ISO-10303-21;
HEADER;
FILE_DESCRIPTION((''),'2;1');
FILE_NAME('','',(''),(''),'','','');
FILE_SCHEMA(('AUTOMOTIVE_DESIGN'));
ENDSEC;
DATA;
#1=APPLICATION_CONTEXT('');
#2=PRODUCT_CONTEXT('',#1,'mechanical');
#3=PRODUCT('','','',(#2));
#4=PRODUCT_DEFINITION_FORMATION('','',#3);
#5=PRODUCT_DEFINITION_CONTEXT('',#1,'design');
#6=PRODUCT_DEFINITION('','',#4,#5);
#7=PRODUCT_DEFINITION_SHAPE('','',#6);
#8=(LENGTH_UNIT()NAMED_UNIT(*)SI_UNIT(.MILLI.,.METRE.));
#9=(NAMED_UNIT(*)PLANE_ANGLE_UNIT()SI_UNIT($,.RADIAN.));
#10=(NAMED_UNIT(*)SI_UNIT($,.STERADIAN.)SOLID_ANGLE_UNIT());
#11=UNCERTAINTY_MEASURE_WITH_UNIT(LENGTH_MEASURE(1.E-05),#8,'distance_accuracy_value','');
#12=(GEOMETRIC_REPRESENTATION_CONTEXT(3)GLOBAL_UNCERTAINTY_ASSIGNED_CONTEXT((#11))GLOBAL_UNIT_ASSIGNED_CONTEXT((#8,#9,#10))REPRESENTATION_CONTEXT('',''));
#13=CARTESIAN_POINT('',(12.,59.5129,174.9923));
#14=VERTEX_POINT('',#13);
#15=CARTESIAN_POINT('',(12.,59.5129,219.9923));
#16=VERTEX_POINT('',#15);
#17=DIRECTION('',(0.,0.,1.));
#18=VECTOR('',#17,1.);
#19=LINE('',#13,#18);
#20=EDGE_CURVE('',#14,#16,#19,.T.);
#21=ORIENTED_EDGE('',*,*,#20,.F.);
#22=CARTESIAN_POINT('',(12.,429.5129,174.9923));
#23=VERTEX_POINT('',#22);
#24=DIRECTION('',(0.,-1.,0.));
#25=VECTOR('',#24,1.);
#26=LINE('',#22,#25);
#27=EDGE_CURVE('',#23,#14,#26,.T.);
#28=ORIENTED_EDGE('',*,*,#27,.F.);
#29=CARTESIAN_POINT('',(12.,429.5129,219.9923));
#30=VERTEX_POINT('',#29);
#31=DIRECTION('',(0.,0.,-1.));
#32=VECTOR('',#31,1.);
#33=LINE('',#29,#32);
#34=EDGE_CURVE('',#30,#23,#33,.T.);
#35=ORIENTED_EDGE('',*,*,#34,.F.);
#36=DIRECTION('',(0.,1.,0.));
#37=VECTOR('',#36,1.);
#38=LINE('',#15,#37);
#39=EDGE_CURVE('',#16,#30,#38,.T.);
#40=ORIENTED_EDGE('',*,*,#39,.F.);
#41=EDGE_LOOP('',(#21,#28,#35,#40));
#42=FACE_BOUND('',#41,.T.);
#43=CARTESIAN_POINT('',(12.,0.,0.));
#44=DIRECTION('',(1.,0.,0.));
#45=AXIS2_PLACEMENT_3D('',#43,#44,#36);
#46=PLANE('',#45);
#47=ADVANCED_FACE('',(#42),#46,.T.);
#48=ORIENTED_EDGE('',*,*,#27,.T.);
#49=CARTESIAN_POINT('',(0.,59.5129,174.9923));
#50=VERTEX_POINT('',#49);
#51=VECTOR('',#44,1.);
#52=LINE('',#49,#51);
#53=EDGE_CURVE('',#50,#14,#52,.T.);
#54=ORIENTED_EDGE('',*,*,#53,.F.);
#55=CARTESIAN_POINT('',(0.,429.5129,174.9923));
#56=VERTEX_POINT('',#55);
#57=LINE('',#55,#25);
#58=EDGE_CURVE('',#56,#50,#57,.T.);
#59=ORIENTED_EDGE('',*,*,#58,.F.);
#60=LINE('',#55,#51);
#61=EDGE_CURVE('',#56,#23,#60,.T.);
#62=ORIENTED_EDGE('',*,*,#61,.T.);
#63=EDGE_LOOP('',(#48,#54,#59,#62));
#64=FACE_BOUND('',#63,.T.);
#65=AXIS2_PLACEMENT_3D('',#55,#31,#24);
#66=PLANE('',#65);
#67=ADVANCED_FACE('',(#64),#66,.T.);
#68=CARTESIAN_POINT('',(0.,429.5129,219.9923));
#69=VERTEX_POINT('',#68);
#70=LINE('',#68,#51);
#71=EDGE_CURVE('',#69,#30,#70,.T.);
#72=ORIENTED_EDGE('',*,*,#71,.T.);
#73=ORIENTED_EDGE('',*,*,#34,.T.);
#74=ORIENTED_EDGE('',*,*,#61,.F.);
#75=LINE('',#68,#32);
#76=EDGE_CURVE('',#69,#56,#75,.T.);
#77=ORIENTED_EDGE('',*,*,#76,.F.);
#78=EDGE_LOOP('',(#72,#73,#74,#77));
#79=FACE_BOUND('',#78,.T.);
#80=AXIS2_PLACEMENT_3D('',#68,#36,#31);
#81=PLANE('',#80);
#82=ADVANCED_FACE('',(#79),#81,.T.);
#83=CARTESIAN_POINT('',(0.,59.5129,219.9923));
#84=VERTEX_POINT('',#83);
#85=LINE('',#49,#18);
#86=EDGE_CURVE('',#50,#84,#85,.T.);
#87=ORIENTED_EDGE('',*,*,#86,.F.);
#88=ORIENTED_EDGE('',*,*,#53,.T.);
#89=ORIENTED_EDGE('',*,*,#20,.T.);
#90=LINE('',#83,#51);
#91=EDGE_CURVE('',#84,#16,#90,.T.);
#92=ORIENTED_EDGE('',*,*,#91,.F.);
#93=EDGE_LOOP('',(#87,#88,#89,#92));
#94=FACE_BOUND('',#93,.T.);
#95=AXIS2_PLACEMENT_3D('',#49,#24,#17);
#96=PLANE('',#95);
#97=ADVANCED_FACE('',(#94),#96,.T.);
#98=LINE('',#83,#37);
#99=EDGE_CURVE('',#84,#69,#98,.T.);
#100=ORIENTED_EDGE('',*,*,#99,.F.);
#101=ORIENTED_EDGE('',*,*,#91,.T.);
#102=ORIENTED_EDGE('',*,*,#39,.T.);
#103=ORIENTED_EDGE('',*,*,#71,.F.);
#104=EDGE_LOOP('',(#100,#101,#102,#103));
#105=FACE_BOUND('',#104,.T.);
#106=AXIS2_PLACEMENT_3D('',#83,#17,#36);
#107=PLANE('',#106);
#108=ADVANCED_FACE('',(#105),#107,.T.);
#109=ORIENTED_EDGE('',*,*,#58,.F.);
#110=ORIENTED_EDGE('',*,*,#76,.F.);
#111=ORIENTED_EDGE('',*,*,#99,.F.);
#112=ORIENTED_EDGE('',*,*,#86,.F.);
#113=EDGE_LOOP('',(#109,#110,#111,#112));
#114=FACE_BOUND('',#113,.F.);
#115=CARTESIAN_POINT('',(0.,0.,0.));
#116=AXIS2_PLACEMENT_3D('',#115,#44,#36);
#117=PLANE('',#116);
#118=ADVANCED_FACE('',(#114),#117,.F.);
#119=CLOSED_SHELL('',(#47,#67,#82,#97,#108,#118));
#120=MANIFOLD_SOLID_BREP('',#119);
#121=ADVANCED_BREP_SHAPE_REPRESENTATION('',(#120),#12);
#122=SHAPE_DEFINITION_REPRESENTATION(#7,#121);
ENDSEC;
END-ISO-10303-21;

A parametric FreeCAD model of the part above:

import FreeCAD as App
import Part
import Sketcher
Q = App.Units.Quantity


def add_polygon(sketch, points):
    """Adds a closed chain of lines whose ends are joined by coincident constraints."""
    first, n = sketch.GeometryCount, len(points)
    for a, b in zip(points, points[1:] + points[:1]):
        sketch.addGeometry(Part.LineSegment(App.Vector(*a, 0), App.Vector(*b, 0)), False)
    for i in range(n):
        sketch.addConstraint(Sketcher.Constraint("Coincident", first + i, 2, first + (i + 1) % n, 1))

doc = App.newDocument("Part")
params = doc.addObject("Spreadsheet::Sheet", "Params")
for row, (alias, value) in enumerate([
    ("sketch1_width", "370 mm"),
    ("sketch1_height", "45 mm"),
    ("pad1_length", "12 mm"),
], start=1):
    params.set(f"A{row}", alias)
    params.set(f"B{row}", "=" + value)
    params.setAlias(f"B{row}", alias)

body = doc.addObject("PartDesign::Body", "Body")

# Sketch on YZ plane
sketch1 = body.newObject("Sketcher::SketchObject", "Sketch")
sketch1.AttachmentSupport = (doc.getObject("YZ_Plane"), [""])
sketch1.MapMode = "FlatFace"
add_polygon(sketch1, [(60, 175), (430, 175), (430, 220), (60, 220)])  # lines 0-3
sketch1.addConstraint(Sketcher.Constraint("Horizontal", 0))
sketch1.addConstraint(Sketcher.Constraint("Vertical", 1))
sketch1.addConstraint(Sketcher.Constraint("Horizontal", 2))
sketch1.addConstraint(Sketcher.Constraint("Vertical", 3))
sketch1.addConstraint(Sketcher.Constraint("DistanceX", 0, 1, 0, 2, Q("370 mm")))
sketch1.addConstraint(Sketcher.Constraint("DistanceY", 1, 1, 1, 2, Q("45 mm")))
sketch1.addConstraint(Sketcher.Constraint("DistanceX", -1, 1, 0, 2, Q("429.513 mm")))
sketch1.addConstraint(Sketcher.Constraint("DistanceY", -1, 1, 0, 2, Q("174.9923 mm")))
sketch1.setExpression("Constraints[8]", "Params.sketch1_width")
sketch1.setExpression("Constraints[9]", "Params.sketch1_height")
pad1 = body.newObject("PartDesign::Pad", "Pad")
pad1.Profile = sketch1
pad1.setExpression("Length", "Params.pad1_length")

doc.recompute()
